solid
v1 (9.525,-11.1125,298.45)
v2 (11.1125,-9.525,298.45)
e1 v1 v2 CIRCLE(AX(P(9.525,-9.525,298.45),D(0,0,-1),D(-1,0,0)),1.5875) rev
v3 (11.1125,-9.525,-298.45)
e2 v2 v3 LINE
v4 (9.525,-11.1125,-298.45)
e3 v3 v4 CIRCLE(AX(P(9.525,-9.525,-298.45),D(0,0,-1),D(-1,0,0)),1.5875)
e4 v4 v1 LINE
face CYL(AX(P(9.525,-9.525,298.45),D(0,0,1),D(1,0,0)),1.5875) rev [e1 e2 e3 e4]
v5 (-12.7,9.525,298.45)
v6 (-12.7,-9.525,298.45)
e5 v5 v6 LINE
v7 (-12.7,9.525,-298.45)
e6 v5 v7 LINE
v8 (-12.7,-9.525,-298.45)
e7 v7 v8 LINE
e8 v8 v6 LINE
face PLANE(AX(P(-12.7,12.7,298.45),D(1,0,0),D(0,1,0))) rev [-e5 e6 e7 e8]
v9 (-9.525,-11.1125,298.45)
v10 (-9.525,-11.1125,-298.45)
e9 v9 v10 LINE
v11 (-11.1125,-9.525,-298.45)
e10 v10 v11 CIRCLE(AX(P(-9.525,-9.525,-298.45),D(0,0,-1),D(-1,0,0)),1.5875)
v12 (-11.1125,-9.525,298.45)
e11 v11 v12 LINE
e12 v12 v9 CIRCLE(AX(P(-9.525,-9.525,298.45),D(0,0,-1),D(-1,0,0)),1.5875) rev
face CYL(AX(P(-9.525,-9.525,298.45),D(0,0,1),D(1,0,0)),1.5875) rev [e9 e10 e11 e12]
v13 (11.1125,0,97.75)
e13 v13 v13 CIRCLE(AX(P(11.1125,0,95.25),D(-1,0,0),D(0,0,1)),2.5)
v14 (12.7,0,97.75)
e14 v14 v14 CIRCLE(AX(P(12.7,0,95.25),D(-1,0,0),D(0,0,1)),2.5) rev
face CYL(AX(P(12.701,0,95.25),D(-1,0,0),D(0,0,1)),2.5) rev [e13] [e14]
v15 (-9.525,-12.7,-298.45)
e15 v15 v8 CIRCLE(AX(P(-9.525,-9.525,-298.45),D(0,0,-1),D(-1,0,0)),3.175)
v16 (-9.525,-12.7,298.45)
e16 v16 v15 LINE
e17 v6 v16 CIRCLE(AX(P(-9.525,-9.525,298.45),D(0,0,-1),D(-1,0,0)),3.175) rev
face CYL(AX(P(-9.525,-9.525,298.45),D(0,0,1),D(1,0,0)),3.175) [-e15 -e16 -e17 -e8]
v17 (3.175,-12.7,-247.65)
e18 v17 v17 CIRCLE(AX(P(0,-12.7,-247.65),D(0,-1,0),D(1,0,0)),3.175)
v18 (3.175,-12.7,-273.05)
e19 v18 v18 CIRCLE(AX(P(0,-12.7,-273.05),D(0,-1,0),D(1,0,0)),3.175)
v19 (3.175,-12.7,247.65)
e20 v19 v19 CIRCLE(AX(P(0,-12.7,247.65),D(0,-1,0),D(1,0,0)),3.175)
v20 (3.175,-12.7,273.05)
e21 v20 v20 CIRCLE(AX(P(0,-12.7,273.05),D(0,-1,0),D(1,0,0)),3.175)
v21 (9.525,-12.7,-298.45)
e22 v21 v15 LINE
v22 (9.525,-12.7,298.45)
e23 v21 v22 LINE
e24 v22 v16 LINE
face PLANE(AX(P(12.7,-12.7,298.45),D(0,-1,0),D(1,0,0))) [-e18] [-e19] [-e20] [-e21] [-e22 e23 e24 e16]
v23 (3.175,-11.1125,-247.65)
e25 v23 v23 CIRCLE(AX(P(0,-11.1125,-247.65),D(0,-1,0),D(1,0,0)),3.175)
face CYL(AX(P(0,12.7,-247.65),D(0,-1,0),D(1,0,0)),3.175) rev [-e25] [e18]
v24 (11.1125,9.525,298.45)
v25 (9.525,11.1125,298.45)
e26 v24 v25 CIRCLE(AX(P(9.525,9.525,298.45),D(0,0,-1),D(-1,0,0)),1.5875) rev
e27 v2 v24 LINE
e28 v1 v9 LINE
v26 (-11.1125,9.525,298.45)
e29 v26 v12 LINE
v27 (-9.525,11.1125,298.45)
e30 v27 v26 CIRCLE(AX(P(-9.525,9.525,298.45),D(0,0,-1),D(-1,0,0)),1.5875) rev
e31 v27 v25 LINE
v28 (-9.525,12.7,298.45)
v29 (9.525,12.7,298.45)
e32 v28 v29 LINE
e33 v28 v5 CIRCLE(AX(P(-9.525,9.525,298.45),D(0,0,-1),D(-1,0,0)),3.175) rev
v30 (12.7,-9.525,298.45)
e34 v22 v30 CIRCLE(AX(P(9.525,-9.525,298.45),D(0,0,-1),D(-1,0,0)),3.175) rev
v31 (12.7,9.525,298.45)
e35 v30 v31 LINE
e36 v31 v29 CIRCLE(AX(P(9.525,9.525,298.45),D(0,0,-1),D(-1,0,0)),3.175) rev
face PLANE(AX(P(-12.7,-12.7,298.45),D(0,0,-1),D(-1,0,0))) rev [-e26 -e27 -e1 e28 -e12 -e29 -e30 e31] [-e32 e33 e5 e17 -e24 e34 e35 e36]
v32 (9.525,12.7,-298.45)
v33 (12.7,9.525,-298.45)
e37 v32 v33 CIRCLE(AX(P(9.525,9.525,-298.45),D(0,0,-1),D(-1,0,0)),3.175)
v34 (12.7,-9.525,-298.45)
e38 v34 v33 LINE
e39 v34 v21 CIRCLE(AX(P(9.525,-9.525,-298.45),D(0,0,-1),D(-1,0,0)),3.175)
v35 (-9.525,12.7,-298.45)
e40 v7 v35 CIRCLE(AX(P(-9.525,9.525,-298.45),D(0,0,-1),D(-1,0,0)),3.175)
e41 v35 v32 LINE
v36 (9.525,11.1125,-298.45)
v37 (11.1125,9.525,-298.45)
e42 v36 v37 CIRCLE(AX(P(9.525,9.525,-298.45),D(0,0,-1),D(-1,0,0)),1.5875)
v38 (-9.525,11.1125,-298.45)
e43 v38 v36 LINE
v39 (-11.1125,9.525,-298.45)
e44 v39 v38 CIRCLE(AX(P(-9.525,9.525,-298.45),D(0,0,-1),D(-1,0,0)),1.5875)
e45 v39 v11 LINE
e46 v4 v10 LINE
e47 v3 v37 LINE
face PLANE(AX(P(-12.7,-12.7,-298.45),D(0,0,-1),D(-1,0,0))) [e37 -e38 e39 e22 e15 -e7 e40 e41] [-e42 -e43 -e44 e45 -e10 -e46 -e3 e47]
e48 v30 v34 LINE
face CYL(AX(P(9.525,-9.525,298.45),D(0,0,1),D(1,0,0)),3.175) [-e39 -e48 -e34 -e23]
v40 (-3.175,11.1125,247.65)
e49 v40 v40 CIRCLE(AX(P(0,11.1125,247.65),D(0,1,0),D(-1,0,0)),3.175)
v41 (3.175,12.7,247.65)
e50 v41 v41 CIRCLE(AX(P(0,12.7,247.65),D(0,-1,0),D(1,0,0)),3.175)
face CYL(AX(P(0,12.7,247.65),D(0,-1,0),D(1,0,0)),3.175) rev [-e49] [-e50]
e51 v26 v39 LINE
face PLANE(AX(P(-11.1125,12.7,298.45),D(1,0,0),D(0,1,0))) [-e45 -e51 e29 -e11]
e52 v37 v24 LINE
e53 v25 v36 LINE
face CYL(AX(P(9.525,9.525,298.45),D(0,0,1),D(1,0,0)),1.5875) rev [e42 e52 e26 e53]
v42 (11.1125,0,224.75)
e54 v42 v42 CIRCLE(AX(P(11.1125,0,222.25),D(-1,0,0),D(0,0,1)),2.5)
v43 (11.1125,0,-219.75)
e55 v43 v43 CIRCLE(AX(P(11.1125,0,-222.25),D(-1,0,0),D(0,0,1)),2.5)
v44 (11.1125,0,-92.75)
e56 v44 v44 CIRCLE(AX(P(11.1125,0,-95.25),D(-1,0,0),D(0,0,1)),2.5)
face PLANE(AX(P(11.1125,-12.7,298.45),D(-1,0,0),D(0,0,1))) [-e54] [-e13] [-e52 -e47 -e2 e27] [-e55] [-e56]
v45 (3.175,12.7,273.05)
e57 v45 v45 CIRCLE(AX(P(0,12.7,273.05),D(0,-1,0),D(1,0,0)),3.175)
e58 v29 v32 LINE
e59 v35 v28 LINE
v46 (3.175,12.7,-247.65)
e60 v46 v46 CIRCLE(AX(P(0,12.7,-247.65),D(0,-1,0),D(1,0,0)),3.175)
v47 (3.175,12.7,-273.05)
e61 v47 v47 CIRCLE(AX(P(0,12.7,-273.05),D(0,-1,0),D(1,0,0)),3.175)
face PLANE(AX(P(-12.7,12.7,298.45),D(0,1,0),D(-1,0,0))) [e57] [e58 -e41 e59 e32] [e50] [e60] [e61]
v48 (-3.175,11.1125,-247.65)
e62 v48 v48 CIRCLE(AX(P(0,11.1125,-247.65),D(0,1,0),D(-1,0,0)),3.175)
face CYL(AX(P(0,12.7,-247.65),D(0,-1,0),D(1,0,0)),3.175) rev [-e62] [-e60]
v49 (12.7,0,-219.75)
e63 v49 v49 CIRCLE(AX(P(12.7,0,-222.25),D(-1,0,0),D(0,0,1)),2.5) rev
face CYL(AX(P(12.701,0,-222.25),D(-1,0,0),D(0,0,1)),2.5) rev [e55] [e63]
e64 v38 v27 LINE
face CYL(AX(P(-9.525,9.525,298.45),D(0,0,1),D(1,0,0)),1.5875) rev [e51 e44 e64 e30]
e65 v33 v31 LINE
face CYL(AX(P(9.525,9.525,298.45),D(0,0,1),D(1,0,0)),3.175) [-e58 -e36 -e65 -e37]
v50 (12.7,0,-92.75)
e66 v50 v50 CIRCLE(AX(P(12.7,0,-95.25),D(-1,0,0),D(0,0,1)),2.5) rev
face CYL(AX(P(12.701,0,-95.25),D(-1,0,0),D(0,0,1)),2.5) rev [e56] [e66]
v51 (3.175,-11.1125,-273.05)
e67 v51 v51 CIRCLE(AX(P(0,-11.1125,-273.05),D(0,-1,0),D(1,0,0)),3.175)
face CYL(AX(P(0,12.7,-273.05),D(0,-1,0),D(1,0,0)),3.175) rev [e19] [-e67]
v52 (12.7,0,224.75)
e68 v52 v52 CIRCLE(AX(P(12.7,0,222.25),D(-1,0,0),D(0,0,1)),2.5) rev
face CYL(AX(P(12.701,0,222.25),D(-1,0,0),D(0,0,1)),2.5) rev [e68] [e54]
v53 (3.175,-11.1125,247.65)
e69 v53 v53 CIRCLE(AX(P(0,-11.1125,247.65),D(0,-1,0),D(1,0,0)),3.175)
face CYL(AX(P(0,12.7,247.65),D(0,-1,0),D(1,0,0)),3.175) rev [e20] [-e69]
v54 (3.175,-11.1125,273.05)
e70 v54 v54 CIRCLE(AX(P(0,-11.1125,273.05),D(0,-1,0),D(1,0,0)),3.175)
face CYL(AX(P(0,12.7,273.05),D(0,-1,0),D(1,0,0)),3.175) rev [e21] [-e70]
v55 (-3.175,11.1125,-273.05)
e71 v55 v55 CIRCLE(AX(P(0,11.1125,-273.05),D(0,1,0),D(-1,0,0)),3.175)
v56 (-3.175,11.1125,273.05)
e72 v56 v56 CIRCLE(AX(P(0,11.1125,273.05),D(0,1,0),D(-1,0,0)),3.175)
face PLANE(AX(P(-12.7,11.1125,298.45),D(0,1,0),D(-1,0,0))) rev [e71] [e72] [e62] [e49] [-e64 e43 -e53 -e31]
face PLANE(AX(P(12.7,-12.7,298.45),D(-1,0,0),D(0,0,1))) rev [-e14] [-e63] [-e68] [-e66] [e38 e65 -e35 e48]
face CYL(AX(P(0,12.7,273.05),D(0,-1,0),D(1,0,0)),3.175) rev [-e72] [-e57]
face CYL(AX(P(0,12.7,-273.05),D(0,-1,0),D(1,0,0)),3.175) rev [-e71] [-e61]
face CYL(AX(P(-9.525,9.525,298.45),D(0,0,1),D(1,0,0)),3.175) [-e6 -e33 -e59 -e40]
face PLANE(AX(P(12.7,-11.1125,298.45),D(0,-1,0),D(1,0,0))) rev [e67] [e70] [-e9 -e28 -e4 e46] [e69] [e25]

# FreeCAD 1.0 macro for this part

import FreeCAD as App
import Part
import Sketcher
from FreeCAD import Vector
Q = App.Units.Quantity


def edges_at(feature, points):
    """Names of the edges that pass closest to the given points."""
    edges = feature.Shape.Edges
    near = lambda p: min(range(len(edges)), key=lambda i: edges[i].distToShape(Part.Vertex(*p))[0])
    return sorted({f"Edge{near(p) + 1}" for p in points})


def faces_at(feature, points):
    """Names of the faces that lie closest to the given points."""
    faces = feature.Shape.Faces
    near = lambda p: min(range(len(faces)), key=lambda i: faces[i].distToShape(Part.Vertex(*p))[0])
    return sorted({f"Face{near(p) + 1}" for p in points})

doc = App.newDocument("Part")
body = doc.addObject("PartDesign::Body", "Body")

# Sketch on XY plane
sketch1 = body.newObject("Sketcher::SketchObject", "Sketch")
sketch1.AttachmentSupport = (doc.getObject("XY_Plane"), [""])
sketch1.MapMode = "FlatFace"
sketch1.addGeometry([
    Part.LineSegment(Vector(-12.7, 12.7, 0), Vector(-12.7, -12.7, 0)),
    Part.LineSegment(Vector(-12.7, -12.7, 0), Vector(12.7, -12.7, 0)),
    Part.LineSegment(Vector(12.7, -12.7, 0), Vector(12.7, 12.7, 0)),
    Part.LineSegment(Vector(12.7, 12.7, 0), Vector(-12.7, 12.7, 0)),
], False)
sketch1.addConstraint([
    Sketcher.Constraint("Coincident", 0, 2, 1, 1),
    Sketcher.Constraint("Coincident", 1, 2, 2, 1),
    Sketcher.Constraint("Coincident", 2, 2, 3, 1),
    Sketcher.Constraint("Coincident", 3, 2, 0, 1),
    Sketcher.Constraint("Vertical", 0),
    Sketcher.Constraint("Horizontal", 1),
    Sketcher.Constraint("Vertical", 2),
    Sketcher.Constraint("Horizontal", 3),
    Sketcher.Constraint("Symmetric", 0, 2, 2, 2, -1, 1),
    Sketcher.Constraint("Equal", 3, 0),
    Sketcher.Constraint("DistanceX", 1, 1, 1, 2, Q("1 in")),
])
pad1 = body.newObject("PartDesign::Pad", "Pad")
pad1.Profile = sketch1
pad1.Length = Q("23.5 in")
pad1.Midplane = True
doc.recompute()

fillet = body.newObject("PartDesign::Fillet", "Fillet")
fillet.Base = (pad1, edges_at(pad1, [
    (-12.7, 12.7, 0),
    (12.7, 12.7, 0),
    (12.7, -12.7, 0),
    (-12.7, -12.7, 0),
]))
fillet.Radius = Q("0.125 in")
doc.recompute()

thickness = body.newObject("PartDesign::Thickness", "Thickness")
thickness.Base = (fillet, faces_at(fillet, [(0, 0, 298.45), (0, 0, -298.45)]))
thickness.Value = Q("0.0625 in")
thickness.Reversed = True
thickness.Join = "Intersection"

# Sketch on XZ plane
sketch2 = body.newObject("Sketcher::SketchObject", "Sketch001")
sketch2.AttachmentSupport = (doc.getObject("XZ_Plane"), [""])
sketch2.MapMode = "FlatFace"
sketch2.AttachmentOffset = App.Placement(Vector(0, 0, 0.5 * 25.4), App.Rotation())
sketch2.addGeometry([
    Part.Circle(Vector(0, 273.05, 0), Vector(0, 0, 1), 3.175),
    Part.Circle(Vector(0, 247.65, 0), Vector(0, 0, 1), 3.175),
    Part.Circle(Vector(0, -247.65, 0), Vector(0, 0, 1), 3.175),
    Part.Circle(Vector(0, -273.05, 0), Vector(0, 0, 1), 3.175),
], False)
sketch2.addConstraint([
    Sketcher.Constraint("Equal", 0, 1),
    Sketcher.Constraint("Equal", 1, 2),
    Sketcher.Constraint("Equal", 2, 3),
    Sketcher.Constraint("Symmetric", 1, 3, 2, 3, -1, 1),
    Sketcher.Constraint("Symmetric", 0, 3, 3, 3, -1, 1),
    Sketcher.Constraint("PointOnObject", 0, 3, -2),
    Sketcher.Constraint("PointOnObject", 1, 3, -2),
    Sketcher.Constraint("Diameter", 0, Q("0.25 in")),
    Sketcher.Constraint("DistanceY", 1, 3, 0, 3, Q("1 in")),
    Sketcher.Constraint("DistanceY", 2, 3, 1, 3, Q("19.5 in")),
])
pocket1 = body.newObject("PartDesign::Pocket", "Pocket")
pocket1.Profile = sketch2
pocket1.Type = "ThroughAll"

# Sketch on YZ plane
sketch3 = body.newObject("Sketcher::SketchObject", "Sketch002")
sketch3.AttachmentSupport = (doc.getObject("YZ_Plane"), [""])
sketch3.MapMode = "FlatFace"
sketch3.AttachmentOffset = App.Placement(Vector(0, 0, 0.4375 * 25.4), App.Rotation())
sketch3.addGeometry(Part.Circle(Vector(0, -95.25, 0), Vector(0, 0, 1), 2.5), False)
sketch3.addConstraint([
    Sketcher.Constraint("PointOnObject", 0, 3, -2),
    Sketcher.Constraint("Diameter", 0, 5.0),
    Sketcher.Constraint("DistanceY", 0, 3, -1, 1, Q("3.75 in")),
])
pocket2 = body.newObject("PartDesign::Pocket", "Pocket001")
pocket2.Profile = sketch3
pocket2.Type = "UpToFirst"
pocket2.Reversed = True

# Sketch on YZ plane
sketch4 = body.newObject("Sketcher::SketchObject", "Sketch003")
sketch4.AttachmentSupport = (doc.getObject("YZ_Plane"), [""])
sketch4.MapMode = "FlatFace"
sketch4.AttachmentOffset = App.Placement(Vector(0, 0, 0.4375 * 25.4), App.Rotation())
sketch4.addGeometry(Part.Circle(Vector(0, -222.25, 0), Vector(0, 0, 1), 2.5), False)
sketch4.addConstraint([
    Sketcher.Constraint("PointOnObject", 0, 3, -2),
    Sketcher.Constraint("Diameter", 0, 5.0),
    Sketcher.Constraint("DistanceY", 0, 3, -1, 1, Q("8.75 in")),
])
pocket3 = body.newObject("PartDesign::Pocket", "Pocket002")
pocket3.Profile = sketch4
pocket3.Type = "UpToFirst"
pocket3.Reversed = True

# Sketch on YZ plane
sketch5 = body.newObject("Sketcher::SketchObject", "Sketch004")
sketch5.AttachmentSupport = (doc.getObject("YZ_Plane"), [""])
sketch5.MapMode = "FlatFace"
sketch5.AttachmentOffset = App.Placement(Vector(0, 0, 0.4375 * 25.4), App.Rotation())
sketch5.addGeometry(Part.Circle(Vector(0, 222.25, 0), Vector(0, 0, 1), 2.5), False)
sketch5.addConstraint([
    Sketcher.Constraint("PointOnObject", 0, 3, -2),
    Sketcher.Constraint("Diameter", 0, 5.0),
    Sketcher.Constraint("DistanceY", -1, 1, 0, 3, Q("8.75 in")),
])
pocket4 = body.newObject("PartDesign::Pocket", "Pocket003")
pocket4.Profile = sketch5
pocket4.Type = "UpToFirst"
pocket4.Reversed = True

# Sketch on YZ plane
sketch6 = body.newObject("Sketcher::SketchObject", "Sketch005")
sketch6.AttachmentSupport = (doc.getObject("YZ_Plane"), [""])
sketch6.MapMode = "FlatFace"
sketch6.AttachmentOffset = App.Placement(Vector(0, 0, 0.4375 * 25.4), App.Rotation())
sketch6.addGeometry(Part.Circle(Vector(0, 95.25, 0), Vector(0, 0, 1), 2.5), False)
sketch6.addConstraint([
    Sketcher.Constraint("PointOnObject", 0, 3, -2),
    Sketcher.Constraint("Diameter", 0, 5.0),
    Sketcher.Constraint("DistanceY", -1, 1, 0, 3, Q("3.75 in")),
])
pocket5 = body.newObject("PartDesign::Pocket", "Pocket004")
pocket5.Profile = sketch6
pocket5.Type = "UpToFirst"
pocket5.Reversed = True

doc.recompute()
